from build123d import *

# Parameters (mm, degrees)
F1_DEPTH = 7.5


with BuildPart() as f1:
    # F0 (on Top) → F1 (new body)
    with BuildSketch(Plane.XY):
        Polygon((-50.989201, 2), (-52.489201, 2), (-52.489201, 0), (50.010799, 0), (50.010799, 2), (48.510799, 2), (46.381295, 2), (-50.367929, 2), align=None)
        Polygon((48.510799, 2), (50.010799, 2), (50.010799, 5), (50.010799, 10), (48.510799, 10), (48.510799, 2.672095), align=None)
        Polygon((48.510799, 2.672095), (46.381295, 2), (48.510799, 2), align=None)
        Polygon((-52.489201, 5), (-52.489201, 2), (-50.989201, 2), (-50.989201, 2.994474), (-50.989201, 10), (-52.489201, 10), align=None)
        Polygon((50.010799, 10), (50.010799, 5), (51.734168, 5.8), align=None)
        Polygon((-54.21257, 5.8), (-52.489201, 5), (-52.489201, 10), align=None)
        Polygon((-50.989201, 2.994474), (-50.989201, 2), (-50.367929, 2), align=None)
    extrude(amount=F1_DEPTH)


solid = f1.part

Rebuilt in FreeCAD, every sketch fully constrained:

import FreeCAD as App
import Part
import Sketcher
Q = App.Units.Quantity

doc = App.newDocument("Part")
body = doc.addObject("PartDesign::Body", "Body")

sketch1 = doc.addObject("Sketcher::SketchObject", "Sketch")
body.addObject(sketch1)
sketch1.AttachmentSupport = (doc.XY_Plane, [""])
sketch1.MapMode = "FlatFace"
sketch1.addGeometry(Part.LineSegment(App.Vector(-52.5, 0, 0), App.Vector(50, 0, 0)), False)
sketch1.addGeometry(Part.LineSegment(App.Vector(50, 0, 0), App.Vector(50, 5, 0)), False)
sketch1.addGeometry(Part.LineSegment(App.Vector(50, 5, 0), App.Vector(51.7, 5.8, 0)), False)
sketch1.addGeometry(Part.LineSegment(App.Vector(51.7, 5.8, 0), App.Vector(50, 10, 0)), False)
sketch1.addGeometry(Part.LineSegment(App.Vector(50, 10, 0), App.Vector(48.5, 10, 0)), False)
sketch1.addGeometry(Part.LineSegment(App.Vector(48.5, 10, 0), App.Vector(48.5, 2.7, 0)), False)
sketch1.addGeometry(Part.LineSegment(App.Vector(48.5, 2.7, 0), App.Vector(46.4, 2, 0)), False)
sketch1.addGeometry(Part.LineSegment(App.Vector(46.4, 2, 0), App.Vector(-50.4, 2, 0)), False)
sketch1.addGeometry(Part.LineSegment(App.Vector(-50.4, 2, 0), App.Vector(-51, 3, 0)), False)
sketch1.addGeometry(Part.LineSegment(App.Vector(-51, 3, 0), App.Vector(-51, 10, 0)), False)
sketch1.addGeometry(Part.LineSegment(App.Vector(-51, 10, 0), App.Vector(-52.5, 10, 0)), False)
sketch1.addGeometry(Part.LineSegment(App.Vector(-52.5, 10, 0), App.Vector(-54.2, 5.8, 0)), False)
sketch1.addGeometry(Part.LineSegment(App.Vector(-54.2, 5.8, 0), App.Vector(-52.5, 5, 0)), False)
sketch1.addGeometry(Part.LineSegment(App.Vector(-52.5, 5, 0), App.Vector(-52.5, 0, 0)), False)
sketch1.addConstraint(Sketcher.Constraint("Coincident", 0, 2, 1, 1))
sketch1.addConstraint(Sketcher.Constraint("Coincident", 1, 2, 2, 1))
sketch1.addConstraint(Sketcher.Constraint("Coincident", 2, 2, 3, 1))
sketch1.addConstraint(Sketcher.Constraint("Coincident", 3, 2, 4, 1))
sketch1.addConstraint(Sketcher.Constraint("Coincident", 4, 2, 5, 1))
sketch1.addConstraint(Sketcher.Constraint("Coincident", 5, 2, 6, 1))
sketch1.addConstraint(Sketcher.Constraint("Coincident", 6, 2, 7, 1))
sketch1.addConstraint(Sketcher.Constraint("Coincident", 7, 2, 8, 1))
sketch1.addConstraint(Sketcher.Constraint("Coincident", 8, 2, 9, 1))
sketch1.addConstraint(Sketcher.Constraint("Coincident", 9, 2, 10, 1))
sketch1.addConstraint(Sketcher.Constraint("Coincident", 10, 2, 11, 1))
sketch1.addConstraint(Sketcher.Constraint("Coincident", 11, 2, 12, 1))
sketch1.addConstraint(Sketcher.Constraint("Coincident", 12, 2, 13, 1))
sketch1.addConstraint(Sketcher.Constraint("Coincident", 13, 2, 0, 1))
sketch1.addConstraint(Sketcher.Constraint("Horizontal", 0))
sketch1.addConstraint(Sketcher.Constraint("Vertical", 1))
sketch1.addConstraint(Sketcher.Constraint("Horizontal", 4))
sketch1.addConstraint(Sketcher.Constraint("Vertical", 5))
sketch1.addConstraint(Sketcher.Constraint("Horizontal", 7))
sketch1.addConstraint(Sketcher.Constraint("Vertical", 9))
sketch1.addConstraint(Sketcher.Constraint("Horizontal", 10))
sketch1.addConstraint(Sketcher.Constraint("Vertical", 13))
sketch1.addConstraint(Sketcher.Constraint("PointOnObject", 0, 2, -1))
sketch1.addConstraint(Sketcher.Constraint("Horizontal", 4, 2, 9, 2))
sketch1.addConstraint(Sketcher.Constraint("Horizontal", 2, 2, 11, 2))
sketch1.addConstraint(Sketcher.Constraint("Horizontal", 1, 2, 12, 2))
sketch1.addConstraint(Sketcher.Constraint("Vertical", 1, 2, 3, 2))
sketch1.addConstraint(Sketcher.Constraint("Vertical", 10, 2, 12, 2))
sketch1.addConstraint(Sketcher.Constraint("Equal", 4, 10))
sketch1.addConstraint(Sketcher.Constraint("Equal", 3, 11))
sketch1.addConstraint(Sketcher.Constraint("DistanceY", 1, 1, 1, 2, Q("5 mm")))
sketch1.addConstraint(Sketcher.Constraint("DistanceX", 0, 1, 0, 2, Q("102.5 mm")))
sketch1.addConstraint(Sketcher.Constraint("DistanceX", 4, 2, 4, 1, Q("1.5 mm")))
sketch1.addConstraint(Sketcher.Constraint("DistanceY", -1, 1, 3, 2, Q("10 mm")))
sketch1.addConstraint(Sketcher.Constraint("DistanceY", -1, 1, 6, 2, Q("2 mm")))
sketch1.addConstraint(Sketcher.Constraint("Distance", 2, Q("1.9 mm")))
sketch1.addConstraint(Sketcher.Constraint("DistanceY", -1, 1, 2, 2, Q("5.8 mm")))
sketch1.addConstraint(Sketcher.Constraint("DistanceX", -1, 1, 0, 2, Q("50.010799 mm")))
sketch1.addConstraint(Sketcher.Constraint("DistanceX", 7, 2, 7, 1, Q("96.749224 mm")))
sketch1.addConstraint(Sketcher.Constraint("DistanceY", 5, 2, 5, 1, Q("7.327905 mm")))
sketch1.addConstraint(Sketcher.Constraint("DistanceY", 9, 1, 9, 2, Q("7.005526 mm")))
sketch1.addConstraint(Sketcher.Constraint("DistanceX", 7, 2, -1, 1, Q("50.367929 mm")))
pad1 = doc.addObject("PartDesign::Pad", "Pad")
body.addObject(pad1)
pad1.Profile = sketch1
pad1.Length = 7.5

doc.recompute()
